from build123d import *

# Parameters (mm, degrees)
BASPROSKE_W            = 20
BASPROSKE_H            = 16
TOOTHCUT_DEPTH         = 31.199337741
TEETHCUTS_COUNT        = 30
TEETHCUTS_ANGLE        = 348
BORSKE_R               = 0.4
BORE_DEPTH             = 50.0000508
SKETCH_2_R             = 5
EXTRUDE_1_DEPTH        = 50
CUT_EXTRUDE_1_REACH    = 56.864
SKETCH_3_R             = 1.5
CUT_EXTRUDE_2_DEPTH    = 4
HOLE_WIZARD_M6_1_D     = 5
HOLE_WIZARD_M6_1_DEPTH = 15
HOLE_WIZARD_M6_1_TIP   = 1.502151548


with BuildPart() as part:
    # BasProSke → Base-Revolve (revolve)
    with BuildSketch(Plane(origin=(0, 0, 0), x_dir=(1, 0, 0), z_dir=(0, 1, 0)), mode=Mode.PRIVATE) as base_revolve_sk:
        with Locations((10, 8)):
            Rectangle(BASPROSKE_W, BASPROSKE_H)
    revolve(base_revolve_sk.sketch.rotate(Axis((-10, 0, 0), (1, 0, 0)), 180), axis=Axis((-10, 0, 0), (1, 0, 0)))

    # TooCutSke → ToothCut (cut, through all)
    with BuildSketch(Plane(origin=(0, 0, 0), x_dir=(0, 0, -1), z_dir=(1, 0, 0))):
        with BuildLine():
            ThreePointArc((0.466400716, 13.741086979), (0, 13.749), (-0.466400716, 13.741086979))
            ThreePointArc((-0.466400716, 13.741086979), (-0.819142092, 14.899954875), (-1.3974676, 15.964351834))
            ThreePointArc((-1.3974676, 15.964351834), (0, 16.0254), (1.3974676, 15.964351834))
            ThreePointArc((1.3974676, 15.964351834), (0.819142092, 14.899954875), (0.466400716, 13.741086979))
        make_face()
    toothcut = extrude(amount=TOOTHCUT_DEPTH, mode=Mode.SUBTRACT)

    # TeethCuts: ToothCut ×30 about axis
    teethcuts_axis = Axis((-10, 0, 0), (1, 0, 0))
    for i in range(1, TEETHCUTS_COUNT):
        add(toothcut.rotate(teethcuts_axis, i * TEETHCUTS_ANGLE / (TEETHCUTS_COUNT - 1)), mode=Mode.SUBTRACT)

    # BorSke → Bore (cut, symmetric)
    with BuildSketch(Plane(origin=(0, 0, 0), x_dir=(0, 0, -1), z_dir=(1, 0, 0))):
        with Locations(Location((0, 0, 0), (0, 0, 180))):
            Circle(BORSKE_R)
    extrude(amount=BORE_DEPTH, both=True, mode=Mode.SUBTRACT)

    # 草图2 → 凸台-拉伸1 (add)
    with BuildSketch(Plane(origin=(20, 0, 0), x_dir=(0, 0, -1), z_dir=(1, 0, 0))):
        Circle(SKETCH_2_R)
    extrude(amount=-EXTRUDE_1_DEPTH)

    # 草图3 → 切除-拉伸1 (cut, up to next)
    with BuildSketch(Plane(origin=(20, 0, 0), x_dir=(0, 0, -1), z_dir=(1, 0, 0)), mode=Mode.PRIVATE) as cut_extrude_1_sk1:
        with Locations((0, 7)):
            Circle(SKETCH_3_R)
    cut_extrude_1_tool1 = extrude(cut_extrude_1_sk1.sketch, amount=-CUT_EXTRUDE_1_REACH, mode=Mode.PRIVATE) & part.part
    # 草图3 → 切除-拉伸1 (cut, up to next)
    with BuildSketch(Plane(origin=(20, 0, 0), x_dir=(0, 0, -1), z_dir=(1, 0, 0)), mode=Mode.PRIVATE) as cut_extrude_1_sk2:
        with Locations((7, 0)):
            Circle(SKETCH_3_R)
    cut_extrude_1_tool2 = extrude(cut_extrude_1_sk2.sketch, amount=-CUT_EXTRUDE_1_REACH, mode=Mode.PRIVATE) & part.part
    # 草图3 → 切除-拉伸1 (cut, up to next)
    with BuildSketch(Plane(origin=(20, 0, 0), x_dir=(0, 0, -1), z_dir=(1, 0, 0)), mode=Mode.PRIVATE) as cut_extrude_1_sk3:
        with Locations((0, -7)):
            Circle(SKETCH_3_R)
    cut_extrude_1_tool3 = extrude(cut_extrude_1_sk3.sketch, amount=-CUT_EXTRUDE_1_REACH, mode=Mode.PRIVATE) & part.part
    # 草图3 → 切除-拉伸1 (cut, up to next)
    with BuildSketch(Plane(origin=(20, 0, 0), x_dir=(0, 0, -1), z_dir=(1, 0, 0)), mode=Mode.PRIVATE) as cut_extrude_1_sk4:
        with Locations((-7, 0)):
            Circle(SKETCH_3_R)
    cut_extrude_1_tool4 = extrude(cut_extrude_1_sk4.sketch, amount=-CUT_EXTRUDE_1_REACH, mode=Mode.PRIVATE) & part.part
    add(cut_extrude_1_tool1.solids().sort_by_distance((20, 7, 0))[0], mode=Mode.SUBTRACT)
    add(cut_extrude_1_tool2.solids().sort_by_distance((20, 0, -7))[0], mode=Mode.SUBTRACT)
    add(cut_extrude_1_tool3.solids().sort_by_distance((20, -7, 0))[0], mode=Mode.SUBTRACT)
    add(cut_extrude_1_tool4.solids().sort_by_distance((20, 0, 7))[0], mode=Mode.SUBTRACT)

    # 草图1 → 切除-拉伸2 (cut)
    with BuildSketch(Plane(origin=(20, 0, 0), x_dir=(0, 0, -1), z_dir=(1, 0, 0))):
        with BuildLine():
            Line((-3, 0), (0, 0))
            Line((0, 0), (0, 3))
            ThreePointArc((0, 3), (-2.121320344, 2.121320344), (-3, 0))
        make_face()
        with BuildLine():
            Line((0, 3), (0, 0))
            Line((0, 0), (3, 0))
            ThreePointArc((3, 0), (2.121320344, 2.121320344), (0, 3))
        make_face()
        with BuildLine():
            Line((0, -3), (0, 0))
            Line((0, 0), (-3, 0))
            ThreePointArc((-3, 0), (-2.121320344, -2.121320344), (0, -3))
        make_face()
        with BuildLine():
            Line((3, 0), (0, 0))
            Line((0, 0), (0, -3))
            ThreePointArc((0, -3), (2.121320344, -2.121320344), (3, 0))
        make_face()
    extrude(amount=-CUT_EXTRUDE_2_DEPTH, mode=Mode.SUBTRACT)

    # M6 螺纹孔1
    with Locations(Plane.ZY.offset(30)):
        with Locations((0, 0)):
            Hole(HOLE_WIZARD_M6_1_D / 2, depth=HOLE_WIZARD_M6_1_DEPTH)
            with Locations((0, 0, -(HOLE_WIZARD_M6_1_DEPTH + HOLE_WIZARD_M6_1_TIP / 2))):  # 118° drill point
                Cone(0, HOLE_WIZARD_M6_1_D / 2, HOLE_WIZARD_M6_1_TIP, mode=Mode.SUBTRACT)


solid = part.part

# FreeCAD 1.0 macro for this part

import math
import FreeCAD as App
import Part
import Sketcher


def add_polygon(sketch, points):
    """Adds a closed chain of lines whose ends are joined by coincident constraints."""
    first, n = sketch.GeometryCount, len(points)
    for a, b in zip(points, points[1:] + points[:1]):
        sketch.addGeometry(Part.LineSegment(App.Vector(*a, 0), App.Vector(*b, 0)), False)
    for i in range(n):
        sketch.addConstraint(Sketcher.Constraint("Coincident", first + i, 2, first + (i + 1) % n, 1))

doc = App.newDocument("Part")
body = doc.addObject("PartDesign::Body", "Body")

sketch1 = doc.addObject("Sketcher::SketchObject", "Sketch")
body.addObject(sketch1)
sketch1.AttachmentSupport = (doc.XZ_Plane, [""])
sketch1.MapMode = "FlatFace"
add_polygon(sketch1, [(0, -16), (0, 0), (20, 0), (20, -16)])
sketch1.addConstraint([
    Sketcher.Constraint("Vertical", 0),
    Sketcher.Constraint("Horizontal", 1),
    Sketcher.Constraint("Vertical", 2),
    Sketcher.Constraint("Horizontal", 3),
    Sketcher.Constraint("Coincident", 0, 2, -1, 1),
    Sketcher.Constraint("DistanceX", 1, 1, 1, 2, 20.0),
    Sketcher.Constraint("DistanceY", 0, 1, 0, 2, 16.0),
])
revolution = doc.addObject("PartDesign::Revolution", "Revolution")
body.addObject(revolution)
revolution.Profile = sketch1
revolution.ReferenceAxis = (sketch1, ["H_Axis"])
revolution.Angle = 360

sketch2 = doc.addObject("Sketcher::SketchObject", "Sketch001")
body.addObject(sketch2)
sketch2.AttachmentSupport = (doc.YZ_Plane, [""])
sketch2.MapMode = "FlatFace"
sketch2.addGeometry([
    Part.ArcOfCircle(Part.Circle(App.Vector(0, 0, 0), App.Vector(0, 0, 1), 13.7), math.radians(-1.94), math.radians(1.94)),
    Part.ArcOfCircle(Part.Circle(App.Vector(12.6, -6.4, 0), App.Vector(0, 0, 1), 6), math.radians(56), math.radians(79)),
    Part.ArcOfCircle(Part.Circle(App.Vector(0, 0, 0), App.Vector(0, 0, 1), 16), math.radians(-5), math.radians(5)),
    Part.ArcOfCircle(Part.Circle(App.Vector(12.6, 6.4, 0), App.Vector(0, 0, 1), 6), math.radians(-79), math.radians(-56)),
], False)
sketch2.addConstraint([
    Sketcher.Constraint("Coincident", 0, 1, 1, 2),
    Sketcher.Constraint("Coincident", 1, 1, 2, 1),
    Sketcher.Constraint("Coincident", 2, 2, 3, 2),
    Sketcher.Constraint("Coincident", 3, 1, 0, 2),
    Sketcher.Constraint("Coincident", 0, 3, -1, 1),
    Sketcher.Constraint("Coincident", 2, 3, -1, 1),
    Sketcher.Constraint("Equal", 1, 3),
    Sketcher.Constraint("Symmetric", 1, 3, 3, 3, -1),
    Sketcher.Constraint("Radius", 1, 6.0),
    Sketcher.Constraint("Radius", 0, 13.749),
    Sketcher.Constraint("Radius", 2, 16.0254),
    Sketcher.Constraint("DistanceY", 0, 1, -1, 1, 0.466401),
    Sketcher.Constraint("DistanceX", -1, 1, 1, 1, 15.964352),
])
pocket1 = doc.addObject("PartDesign::Pocket", "Pocket")
body.addObject(pocket1)
pocket1.Profile = sketch2
pocket1.Type = "ThroughAll"
pocket1.Reversed = True
doc.recompute()

polarpattern = doc.addObject("PartDesign::PolarPattern", "PolarPattern")
body.addObject(polarpattern)
polarpattern.Originals = [pocket1]
polarpattern.Axis = (doc.X_Axis, [""])
polarpattern.Angle = 360
polarpattern.Occurrences = 30
body.Tip = polarpattern

sketch3 = doc.addObject("Sketcher::SketchObject", "Sketch002")
body.addObject(sketch3)
sketch3.AttachmentSupport = (doc.YZ_Plane, [""])
sketch3.MapMode = "FlatFace"
sketch3.addGeometry(Part.Circle(App.Vector(0, 0, 0), App.Vector(0, 0, 1), 0.4), False)
sketch3.addConstraint([
    Sketcher.Constraint("Coincident", 0, 3, -1, 1),
    Sketcher.Constraint("Diameter", 0, 0.8),
])
pocket2 = doc.addObject("PartDesign::Pocket", "Pocket001")
body.addObject(pocket2)
pocket2.Profile = sketch3
pocket2.Length = 100.000102
pocket2.Midplane = True

sketch4 = doc.addObject("Sketcher::SketchObject", "Sketch003")
body.addObject(sketch4)
sketch4.AttachmentSupport = (doc.YZ_Plane, [""])
sketch4.MapMode = "FlatFace"
sketch4.AttachmentOffset = App.Placement(App.Vector(0, 0, 20), App.Rotation())
sketch4.addGeometry(Part.Circle(App.Vector(0, 0, 0), App.Vector(0, 0, 1), 5), False)
sketch4.addConstraint([
    Sketcher.Constraint("Coincident", 0, 3, -1, 1),
    Sketcher.Constraint("Diameter", 0, 10.0),
])
pad1 = doc.addObject("PartDesign::Pad", "Pad")
body.addObject(pad1)
pad1.Profile = sketch4
pad1.Length = 50
pad1.Reversed = True

sketch5 = doc.addObject("Sketcher::SketchObject", "Sketch004")
body.addObject(sketch5)
sketch5.AttachmentSupport = (doc.YZ_Plane, [""])
sketch5.MapMode = "FlatFace"
sketch5.AttachmentOffset = App.Placement(App.Vector(0, 0, 20), App.Rotation())
sketch5.addGeometry(Part.Circle(App.Vector(7, 0, 0), App.Vector(0, 0, 1), 1.5), False)
sketch5.addConstraint([
    Sketcher.Constraint("PointOnObject", 0, 3, -1),
    Sketcher.Constraint("Diameter", 0, 3.0),
    Sketcher.Constraint("DistanceX", -1, 1, 0, 3, 7.0),
])
pocket3 = doc.addObject("PartDesign::Pocket", "Pocket002")
body.addObject(pocket3)
pocket3.Profile = sketch5
pocket3.Type = "UpToFirst"

sketch6 = doc.addObject("Sketcher::SketchObject", "Sketch005")
body.addObject(sketch6)
sketch6.AttachmentSupport = (doc.YZ_Plane, [""])
sketch6.MapMode = "FlatFace"
sketch6.AttachmentOffset = App.Placement(App.Vector(0, 0, 20), App.Rotation())
sketch6.addGeometry(Part.Circle(App.Vector(0, -7, 0), App.Vector(0, 0, 1), 1.5), False)
sketch6.addConstraint([
    Sketcher.Constraint("PointOnObject", 0, 3, -2),
    Sketcher.Constraint("Diameter", 0, 3.0),
    Sketcher.Constraint("DistanceY", 0, 3, -1, 1, 7.0),
])
pocket4 = doc.addObject("PartDesign::Pocket", "Pocket003")
body.addObject(pocket4)
pocket4.Profile = sketch6
pocket4.Type = "UpToFirst"

sketch7 = doc.addObject("Sketcher::SketchObject", "Sketch006")
body.addObject(sketch7)
sketch7.AttachmentSupport = (doc.YZ_Plane, [""])
sketch7.MapMode = "FlatFace"
sketch7.AttachmentOffset = App.Placement(App.Vector(0, 0, 20), App.Rotation())
sketch7.addGeometry(Part.Circle(App.Vector(-7, 0, 0), App.Vector(0, 0, 1), 1.5), False)
sketch7.addConstraint([
    Sketcher.Constraint("PointOnObject", 0, 3, -1),
    Sketcher.Constraint("Diameter", 0, 3.0),
    Sketcher.Constraint("DistanceX", 0, 3, -1, 1, 7.0),
])
pocket5 = doc.addObject("PartDesign::Pocket", "Pocket004")
body.addObject(pocket5)
pocket5.Profile = sketch7
pocket5.Type = "UpToFirst"

sketch8 = doc.addObject("Sketcher::SketchObject", "Sketch007")
body.addObject(sketch8)
sketch8.AttachmentSupport = (doc.YZ_Plane, [""])
sketch8.MapMode = "FlatFace"
sketch8.AttachmentOffset = App.Placement(App.Vector(0, 0, 20), App.Rotation())
sketch8.addGeometry(Part.Circle(App.Vector(0, 7, 0), App.Vector(0, 0, 1), 1.5), False)
sketch8.addConstraint([
    Sketcher.Constraint("PointOnObject", 0, 3, -2),
    Sketcher.Constraint("Diameter", 0, 3.0),
    Sketcher.Constraint("DistanceY", -1, 1, 0, 3, 7.0),
])
pocket6 = doc.addObject("PartDesign::Pocket", "Pocket005")
body.addObject(pocket6)
pocket6.Profile = sketch8
pocket6.Type = "UpToFirst"

sketch9 = doc.addObject("Sketcher::SketchObject", "Sketch008")
body.addObject(sketch9)
sketch9.AttachmentSupport = (doc.YZ_Plane, [""])
sketch9.MapMode = "FlatFace"
sketch9.AttachmentOffset = App.Placement(App.Vector(0, 0, 20), App.Rotation())
sketch9.addGeometry([
    Part.ArcOfCircle(Part.Circle(App.Vector(0, 0, 0), App.Vector(0, 0, 1), 3), math.radians(-90), math.radians(0)),
    Part.ArcOfCircle(Part.Circle(App.Vector(0, 0, 0), App.Vector(0, 0, 1), 3), math.radians(0), math.radians(90)),
    Part.ArcOfCircle(Part.Circle(App.Vector(0, 0, 0), App.Vector(0, 0, 1), 3), math.radians(90), math.radians(180)),
    Part.ArcOfCircle(Part.Circle(App.Vector(0, 0, 0), App.Vector(0, 0, 1), 3), math.radians(180), math.radians(270)),
], False)
sketch9.addConstraint([
    Sketcher.Constraint("Tangent", 0, 2, 1, 1),
    Sketcher.Constraint("Tangent", 1, 2, 2, 1),
    Sketcher.Constraint("Tangent", 2, 2, 3, 1),
    Sketcher.Constraint("Tangent", 3, 2, 0, 1),
    Sketcher.Constraint("Coincident", 0, 3, -1, 1),
    Sketcher.Constraint("Equal", 0, 1),
    Sketcher.Constraint("PointOnObject", 0, 2, -1),
    Sketcher.Constraint("PointOnObject", 1, 2, -2),
    Sketcher.Constraint("PointOnObject", 2, 2, -1),
    Sketcher.Constraint("PointOnObject", 3, 2, -2),
    Sketcher.Constraint("Radius", 0, 3.0),
])
pocket7 = doc.addObject("PartDesign::Pocket", "Pocket006")
body.addObject(pocket7)
pocket7.Profile = sketch9
pocket7.Length = 4

sketch10 = doc.addObject("Sketcher::SketchObject", "Sketch009")
body.addObject(sketch10)
sketch10.AttachmentSupport = (doc.YZ_Plane, [""])
sketch10.MapMode = "FlatFace"
sketch10.AttachmentOffset = App.Placement(App.Vector(0, 0, -30), App.Rotation())
sketch10.addGeometry(Part.Circle(App.Vector(0, 0, 0), App.Vector(0, 0, 1), 2.5), False)
sketch10.addConstraint([
    Sketcher.Constraint("Coincident", 0, 3, -1, 1),
    Sketcher.Constraint("Diameter", 0, 5.0),
])
doc.recompute()
hole = doc.addObject("PartDesign::Hole", "Hole")
body.addObject(hole)
hole.Profile = sketch10
hole.ThreadType = "None"
hole.Diameter = 5
hole.DepthType = "Dimension"
hole.Depth = 15
hole.DrillPoint = "Angled"
hole.DrillPointAngle = 118
hole.Reversed = True

doc.recompute()
